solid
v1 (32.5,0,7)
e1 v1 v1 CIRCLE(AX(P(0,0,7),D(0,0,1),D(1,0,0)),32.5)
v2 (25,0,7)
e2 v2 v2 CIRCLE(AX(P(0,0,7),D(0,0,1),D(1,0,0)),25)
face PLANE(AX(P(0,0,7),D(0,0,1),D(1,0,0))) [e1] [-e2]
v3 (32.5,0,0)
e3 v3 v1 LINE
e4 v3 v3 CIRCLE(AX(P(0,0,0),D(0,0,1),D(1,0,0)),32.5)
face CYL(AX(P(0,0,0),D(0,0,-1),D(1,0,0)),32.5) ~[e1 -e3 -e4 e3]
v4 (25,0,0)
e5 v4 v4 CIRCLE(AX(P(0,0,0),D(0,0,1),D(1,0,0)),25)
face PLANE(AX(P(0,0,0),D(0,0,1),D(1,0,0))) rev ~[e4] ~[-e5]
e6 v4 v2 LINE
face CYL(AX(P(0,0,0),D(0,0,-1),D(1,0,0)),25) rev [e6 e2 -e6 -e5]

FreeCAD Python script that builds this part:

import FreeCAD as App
import Part
import Sketcher
Q = App.Units.Quantity

doc = App.newDocument("Part")
body = doc.addObject("PartDesign::Body", "Body")

# Sketch on XY plane
sketch1 = body.newObject("Sketcher::SketchObject", "Sketch")
sketch1.AttachmentSupport = (doc.getObject("XY_Plane"), [""])
sketch1.MapMode = "FlatFace"
sketch1.addGeometry([
    Part.Circle(App.Vector(0, 0, 0), App.Vector(0, 0, 1), 32),
    Part.Circle(App.Vector(0, 0, 0), App.Vector(0, 0, 1), 25),
], False)
sketch1.addConstraint([
    Sketcher.Constraint("Coincident", 0, 3, -1, 1),
    Sketcher.Constraint("Coincident", 1, 3, -1, 1),
    Sketcher.Constraint("Diameter", 0, Q("65 mm")),
    Sketcher.Constraint("Diameter", 1, Q("50 mm")),
])
pad1 = body.newObject("PartDesign::Pad", "Pad")
pad1.Profile = sketch1
pad1.Length = 7

doc.recompute()
